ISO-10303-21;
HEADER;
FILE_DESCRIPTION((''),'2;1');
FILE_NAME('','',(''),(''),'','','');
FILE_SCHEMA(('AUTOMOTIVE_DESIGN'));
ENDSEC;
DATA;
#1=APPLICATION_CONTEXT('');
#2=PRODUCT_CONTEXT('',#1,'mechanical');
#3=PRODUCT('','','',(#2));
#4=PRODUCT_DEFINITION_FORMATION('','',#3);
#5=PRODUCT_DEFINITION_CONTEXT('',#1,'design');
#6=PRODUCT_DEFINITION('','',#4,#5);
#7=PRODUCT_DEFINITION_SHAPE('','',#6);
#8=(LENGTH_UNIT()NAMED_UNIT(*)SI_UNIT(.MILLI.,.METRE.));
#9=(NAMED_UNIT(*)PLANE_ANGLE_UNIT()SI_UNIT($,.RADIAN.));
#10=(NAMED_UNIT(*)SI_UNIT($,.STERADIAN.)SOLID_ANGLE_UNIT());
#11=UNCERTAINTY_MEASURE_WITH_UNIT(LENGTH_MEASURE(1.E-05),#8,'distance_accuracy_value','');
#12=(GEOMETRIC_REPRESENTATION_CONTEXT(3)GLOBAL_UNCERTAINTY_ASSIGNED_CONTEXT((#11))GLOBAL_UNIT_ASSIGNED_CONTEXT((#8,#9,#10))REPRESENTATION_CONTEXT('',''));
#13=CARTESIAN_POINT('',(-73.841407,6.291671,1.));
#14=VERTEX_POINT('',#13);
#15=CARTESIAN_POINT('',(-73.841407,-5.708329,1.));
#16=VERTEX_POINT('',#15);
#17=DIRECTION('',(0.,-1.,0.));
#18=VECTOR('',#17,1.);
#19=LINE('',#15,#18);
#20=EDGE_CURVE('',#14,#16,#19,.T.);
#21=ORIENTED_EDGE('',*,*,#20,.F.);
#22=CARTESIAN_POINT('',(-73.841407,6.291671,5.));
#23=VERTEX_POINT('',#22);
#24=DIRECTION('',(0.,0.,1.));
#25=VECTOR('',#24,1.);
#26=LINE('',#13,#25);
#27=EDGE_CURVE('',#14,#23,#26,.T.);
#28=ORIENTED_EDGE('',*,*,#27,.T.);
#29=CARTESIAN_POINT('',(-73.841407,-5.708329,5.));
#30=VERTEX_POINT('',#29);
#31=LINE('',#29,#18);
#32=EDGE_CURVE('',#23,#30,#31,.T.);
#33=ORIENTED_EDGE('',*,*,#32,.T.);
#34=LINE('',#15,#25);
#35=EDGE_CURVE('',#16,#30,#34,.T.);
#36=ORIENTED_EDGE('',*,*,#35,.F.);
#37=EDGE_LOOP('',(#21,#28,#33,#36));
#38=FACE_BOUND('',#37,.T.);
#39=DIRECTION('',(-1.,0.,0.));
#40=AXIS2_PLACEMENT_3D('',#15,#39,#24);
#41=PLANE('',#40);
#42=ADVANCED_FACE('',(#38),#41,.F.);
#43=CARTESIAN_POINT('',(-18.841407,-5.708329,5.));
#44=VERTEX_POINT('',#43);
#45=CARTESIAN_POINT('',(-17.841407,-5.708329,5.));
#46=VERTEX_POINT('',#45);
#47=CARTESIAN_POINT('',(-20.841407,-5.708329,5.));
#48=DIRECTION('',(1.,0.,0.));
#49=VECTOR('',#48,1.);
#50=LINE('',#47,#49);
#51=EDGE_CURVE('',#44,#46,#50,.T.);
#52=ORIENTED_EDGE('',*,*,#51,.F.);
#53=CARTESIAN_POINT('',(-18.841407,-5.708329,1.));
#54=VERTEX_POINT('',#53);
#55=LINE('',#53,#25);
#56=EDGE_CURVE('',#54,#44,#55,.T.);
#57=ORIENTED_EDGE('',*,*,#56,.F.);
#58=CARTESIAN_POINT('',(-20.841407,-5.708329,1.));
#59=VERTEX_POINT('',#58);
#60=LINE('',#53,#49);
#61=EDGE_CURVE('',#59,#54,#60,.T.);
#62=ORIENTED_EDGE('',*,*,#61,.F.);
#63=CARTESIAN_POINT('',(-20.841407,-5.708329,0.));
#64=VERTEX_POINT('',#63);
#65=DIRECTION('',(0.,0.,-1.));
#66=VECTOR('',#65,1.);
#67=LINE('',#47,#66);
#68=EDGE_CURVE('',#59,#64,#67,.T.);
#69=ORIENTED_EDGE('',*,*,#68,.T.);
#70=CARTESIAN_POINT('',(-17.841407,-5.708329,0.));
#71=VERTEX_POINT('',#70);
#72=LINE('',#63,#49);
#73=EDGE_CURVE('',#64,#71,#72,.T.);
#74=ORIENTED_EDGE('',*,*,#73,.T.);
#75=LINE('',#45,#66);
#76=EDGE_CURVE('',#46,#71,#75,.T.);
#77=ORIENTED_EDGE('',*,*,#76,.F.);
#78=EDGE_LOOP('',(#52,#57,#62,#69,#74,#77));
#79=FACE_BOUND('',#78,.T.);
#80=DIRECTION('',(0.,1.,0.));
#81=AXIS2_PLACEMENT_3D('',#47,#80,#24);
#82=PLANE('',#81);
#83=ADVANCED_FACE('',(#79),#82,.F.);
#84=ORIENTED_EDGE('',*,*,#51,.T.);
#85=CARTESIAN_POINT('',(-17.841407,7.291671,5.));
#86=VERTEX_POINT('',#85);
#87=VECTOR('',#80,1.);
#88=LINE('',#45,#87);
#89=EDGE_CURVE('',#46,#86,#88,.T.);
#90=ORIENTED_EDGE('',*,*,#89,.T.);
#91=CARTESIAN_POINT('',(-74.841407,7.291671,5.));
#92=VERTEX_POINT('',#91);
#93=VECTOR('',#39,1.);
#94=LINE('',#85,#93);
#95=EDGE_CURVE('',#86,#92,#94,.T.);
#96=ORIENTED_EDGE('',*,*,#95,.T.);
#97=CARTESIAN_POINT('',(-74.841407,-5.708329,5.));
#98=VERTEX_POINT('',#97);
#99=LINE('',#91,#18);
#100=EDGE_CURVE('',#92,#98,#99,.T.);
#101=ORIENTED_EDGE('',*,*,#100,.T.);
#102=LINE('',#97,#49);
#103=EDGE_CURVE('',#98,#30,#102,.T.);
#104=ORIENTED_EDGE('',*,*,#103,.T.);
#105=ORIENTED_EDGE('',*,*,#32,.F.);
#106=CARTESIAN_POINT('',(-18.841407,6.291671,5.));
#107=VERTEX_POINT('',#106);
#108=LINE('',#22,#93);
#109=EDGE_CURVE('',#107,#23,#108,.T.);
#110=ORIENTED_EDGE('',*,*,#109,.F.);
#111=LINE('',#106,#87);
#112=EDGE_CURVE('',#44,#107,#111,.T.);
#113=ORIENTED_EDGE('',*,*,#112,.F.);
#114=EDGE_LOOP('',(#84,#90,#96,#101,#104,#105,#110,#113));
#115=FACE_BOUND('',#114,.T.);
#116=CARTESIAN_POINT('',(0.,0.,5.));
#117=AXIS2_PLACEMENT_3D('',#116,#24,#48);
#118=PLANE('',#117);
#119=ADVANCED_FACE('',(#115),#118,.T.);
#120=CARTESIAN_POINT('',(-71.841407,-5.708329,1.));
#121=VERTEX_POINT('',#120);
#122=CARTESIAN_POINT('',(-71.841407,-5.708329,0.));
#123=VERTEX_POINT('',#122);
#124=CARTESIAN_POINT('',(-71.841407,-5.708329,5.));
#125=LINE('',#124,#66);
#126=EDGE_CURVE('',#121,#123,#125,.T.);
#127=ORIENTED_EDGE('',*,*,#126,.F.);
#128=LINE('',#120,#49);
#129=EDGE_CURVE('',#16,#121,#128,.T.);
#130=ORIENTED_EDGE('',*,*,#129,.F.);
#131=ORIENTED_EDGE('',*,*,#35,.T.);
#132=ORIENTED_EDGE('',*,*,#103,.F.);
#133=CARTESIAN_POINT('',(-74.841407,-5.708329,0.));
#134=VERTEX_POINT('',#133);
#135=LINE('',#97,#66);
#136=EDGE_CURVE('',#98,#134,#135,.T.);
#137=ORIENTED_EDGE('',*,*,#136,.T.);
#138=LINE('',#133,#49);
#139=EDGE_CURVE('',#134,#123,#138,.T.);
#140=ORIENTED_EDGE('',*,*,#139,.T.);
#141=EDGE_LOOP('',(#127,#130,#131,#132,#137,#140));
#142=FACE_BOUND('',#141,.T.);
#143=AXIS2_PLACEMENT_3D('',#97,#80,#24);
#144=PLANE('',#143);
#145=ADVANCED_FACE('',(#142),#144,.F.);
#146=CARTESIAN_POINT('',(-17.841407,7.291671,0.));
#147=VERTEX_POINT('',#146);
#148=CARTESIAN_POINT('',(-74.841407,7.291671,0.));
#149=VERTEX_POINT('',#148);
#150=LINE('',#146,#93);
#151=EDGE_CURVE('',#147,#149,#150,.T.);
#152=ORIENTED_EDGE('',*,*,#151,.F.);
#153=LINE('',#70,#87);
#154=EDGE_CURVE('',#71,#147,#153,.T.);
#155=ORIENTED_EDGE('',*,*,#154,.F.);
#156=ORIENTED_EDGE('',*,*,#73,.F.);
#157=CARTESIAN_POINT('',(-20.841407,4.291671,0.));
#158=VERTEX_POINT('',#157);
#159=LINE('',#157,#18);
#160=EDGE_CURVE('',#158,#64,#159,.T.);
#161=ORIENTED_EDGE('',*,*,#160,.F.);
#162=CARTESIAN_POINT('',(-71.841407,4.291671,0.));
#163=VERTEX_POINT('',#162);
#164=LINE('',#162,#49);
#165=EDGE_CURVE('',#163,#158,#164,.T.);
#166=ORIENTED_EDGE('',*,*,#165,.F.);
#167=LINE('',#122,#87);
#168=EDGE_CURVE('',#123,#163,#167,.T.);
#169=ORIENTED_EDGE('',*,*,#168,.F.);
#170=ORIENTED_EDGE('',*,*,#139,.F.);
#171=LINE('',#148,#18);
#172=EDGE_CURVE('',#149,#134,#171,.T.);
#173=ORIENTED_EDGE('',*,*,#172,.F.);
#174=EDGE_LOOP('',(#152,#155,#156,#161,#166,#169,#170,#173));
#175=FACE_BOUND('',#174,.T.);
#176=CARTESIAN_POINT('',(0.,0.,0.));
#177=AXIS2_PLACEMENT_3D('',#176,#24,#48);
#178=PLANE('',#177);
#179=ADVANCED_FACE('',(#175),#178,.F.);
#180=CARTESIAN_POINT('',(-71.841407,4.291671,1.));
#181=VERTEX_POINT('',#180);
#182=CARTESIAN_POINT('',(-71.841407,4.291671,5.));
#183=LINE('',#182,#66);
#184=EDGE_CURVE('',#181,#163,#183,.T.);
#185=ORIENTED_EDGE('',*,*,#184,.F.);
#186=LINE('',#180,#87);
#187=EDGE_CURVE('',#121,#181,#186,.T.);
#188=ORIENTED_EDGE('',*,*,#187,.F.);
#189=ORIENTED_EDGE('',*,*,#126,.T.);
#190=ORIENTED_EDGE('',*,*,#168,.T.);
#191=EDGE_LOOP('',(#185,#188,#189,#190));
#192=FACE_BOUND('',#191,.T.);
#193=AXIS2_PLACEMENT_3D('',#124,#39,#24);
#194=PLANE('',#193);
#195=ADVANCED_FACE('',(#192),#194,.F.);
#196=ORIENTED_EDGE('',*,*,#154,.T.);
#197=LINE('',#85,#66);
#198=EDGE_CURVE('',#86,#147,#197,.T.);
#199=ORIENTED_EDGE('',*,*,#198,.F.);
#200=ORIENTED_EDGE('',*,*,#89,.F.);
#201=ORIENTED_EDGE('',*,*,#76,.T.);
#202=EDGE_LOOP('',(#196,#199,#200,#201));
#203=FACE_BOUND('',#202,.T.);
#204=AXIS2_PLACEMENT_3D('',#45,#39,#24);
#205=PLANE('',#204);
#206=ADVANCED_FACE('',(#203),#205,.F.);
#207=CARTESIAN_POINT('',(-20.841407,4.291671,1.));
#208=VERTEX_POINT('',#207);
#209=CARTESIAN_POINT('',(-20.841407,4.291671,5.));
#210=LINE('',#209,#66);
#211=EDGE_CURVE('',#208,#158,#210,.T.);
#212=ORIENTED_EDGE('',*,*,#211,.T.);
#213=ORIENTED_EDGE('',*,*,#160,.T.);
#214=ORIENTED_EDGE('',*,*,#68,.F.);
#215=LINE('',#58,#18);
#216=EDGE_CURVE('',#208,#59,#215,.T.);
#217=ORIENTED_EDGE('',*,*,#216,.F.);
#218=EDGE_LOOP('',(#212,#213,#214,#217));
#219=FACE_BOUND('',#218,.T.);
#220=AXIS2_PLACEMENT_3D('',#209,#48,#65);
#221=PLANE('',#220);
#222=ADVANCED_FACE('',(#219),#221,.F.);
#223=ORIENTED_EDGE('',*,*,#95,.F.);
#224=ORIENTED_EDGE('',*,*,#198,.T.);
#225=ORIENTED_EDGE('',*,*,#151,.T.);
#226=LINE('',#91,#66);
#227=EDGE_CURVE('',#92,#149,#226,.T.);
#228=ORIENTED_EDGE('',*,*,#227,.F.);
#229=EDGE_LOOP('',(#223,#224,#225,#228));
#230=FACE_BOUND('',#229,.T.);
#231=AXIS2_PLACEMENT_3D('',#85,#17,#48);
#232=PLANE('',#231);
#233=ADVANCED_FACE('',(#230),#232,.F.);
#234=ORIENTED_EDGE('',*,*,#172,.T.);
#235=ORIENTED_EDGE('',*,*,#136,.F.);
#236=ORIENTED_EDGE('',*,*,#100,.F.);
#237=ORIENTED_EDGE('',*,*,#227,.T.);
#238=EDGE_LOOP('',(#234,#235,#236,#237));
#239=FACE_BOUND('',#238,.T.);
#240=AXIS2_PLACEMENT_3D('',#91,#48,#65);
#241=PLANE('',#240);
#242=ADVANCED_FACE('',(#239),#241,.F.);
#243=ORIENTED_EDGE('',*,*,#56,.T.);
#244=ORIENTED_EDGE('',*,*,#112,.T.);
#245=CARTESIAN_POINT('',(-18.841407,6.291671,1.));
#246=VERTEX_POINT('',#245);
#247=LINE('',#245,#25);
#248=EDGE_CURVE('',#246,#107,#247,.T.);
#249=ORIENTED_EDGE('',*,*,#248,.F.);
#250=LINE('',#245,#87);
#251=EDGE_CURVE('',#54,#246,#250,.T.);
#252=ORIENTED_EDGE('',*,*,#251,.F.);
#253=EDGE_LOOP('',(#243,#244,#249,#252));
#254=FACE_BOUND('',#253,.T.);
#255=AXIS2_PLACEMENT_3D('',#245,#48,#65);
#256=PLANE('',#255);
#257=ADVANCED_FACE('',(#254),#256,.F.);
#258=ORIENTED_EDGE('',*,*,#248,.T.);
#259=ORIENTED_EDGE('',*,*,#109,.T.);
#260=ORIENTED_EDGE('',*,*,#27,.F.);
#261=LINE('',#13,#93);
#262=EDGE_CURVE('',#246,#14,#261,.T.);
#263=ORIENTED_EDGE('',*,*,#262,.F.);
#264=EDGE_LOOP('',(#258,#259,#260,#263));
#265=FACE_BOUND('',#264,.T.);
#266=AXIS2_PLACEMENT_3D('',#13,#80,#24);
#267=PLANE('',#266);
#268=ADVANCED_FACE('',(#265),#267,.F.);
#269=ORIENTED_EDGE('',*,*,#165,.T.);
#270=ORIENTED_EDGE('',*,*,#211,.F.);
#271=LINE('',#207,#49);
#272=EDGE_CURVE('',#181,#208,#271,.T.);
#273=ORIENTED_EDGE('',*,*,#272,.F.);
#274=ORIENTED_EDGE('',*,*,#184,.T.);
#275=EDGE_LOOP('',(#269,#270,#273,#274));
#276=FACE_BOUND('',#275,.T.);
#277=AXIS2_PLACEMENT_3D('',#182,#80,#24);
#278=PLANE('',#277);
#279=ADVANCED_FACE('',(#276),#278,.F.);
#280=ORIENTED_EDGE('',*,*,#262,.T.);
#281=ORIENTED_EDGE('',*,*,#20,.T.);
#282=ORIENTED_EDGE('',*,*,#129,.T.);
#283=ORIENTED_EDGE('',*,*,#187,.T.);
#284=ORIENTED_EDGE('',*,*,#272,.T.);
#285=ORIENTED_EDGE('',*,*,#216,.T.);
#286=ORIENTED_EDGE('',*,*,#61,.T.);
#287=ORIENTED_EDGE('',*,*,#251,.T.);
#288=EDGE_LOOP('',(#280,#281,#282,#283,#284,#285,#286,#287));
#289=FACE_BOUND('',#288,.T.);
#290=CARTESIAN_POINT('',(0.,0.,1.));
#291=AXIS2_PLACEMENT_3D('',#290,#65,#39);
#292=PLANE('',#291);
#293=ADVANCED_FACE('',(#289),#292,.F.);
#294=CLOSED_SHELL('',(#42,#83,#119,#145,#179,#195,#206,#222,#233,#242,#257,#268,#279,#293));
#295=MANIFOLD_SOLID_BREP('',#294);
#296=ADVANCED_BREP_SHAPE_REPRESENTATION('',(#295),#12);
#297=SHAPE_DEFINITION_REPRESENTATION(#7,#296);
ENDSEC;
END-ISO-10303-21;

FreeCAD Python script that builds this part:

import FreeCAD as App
import Part
import Sketcher

V = App.Vector


def add_polygon(sketch, points):
    """Adds a closed chain of lines whose ends are joined by coincident constraints."""
    first, n = sketch.GeometryCount, len(points)
    for a, b in zip(points, points[1:] + points[:1]):
        sketch.addGeometry(Part.LineSegment(App.Vector(*a, 0), App.Vector(*b, 0)), False)
    for i in range(n):
        sketch.addConstraint(Sketcher.Constraint("Coincident", first + i, 2, first + (i + 1) % n, 1))

doc = App.newDocument("Part")
params = doc.addObject("Spreadsheet::Sheet", "Params")
for row, (alias, value) in enumerate([
    ("sketch1_width", "51 mm"),
    ("sketch1_width2", "3 mm"),
    ("sketch1_height", "10 mm"),
    ("sketch1_height2", "13 mm"),
    ("pad1_length", "5 mm"),
    ("sketch2_width", "2 mm"),
    ("sketch2_width2", "51 mm"),
    ("sketch2_height", "10 mm"),
    ("sketch2_height2", "12 mm"),
    ("pocket1_length", "4 mm"),
], start=1):
    params.set(f"A{row}", alias)
    params.set(f"B{row}", "=" + value)
    params.setAlias(f"B{row}", alias)

body = doc.addObject("PartDesign::Body", "Body")

# Sketch on XY plane
sketch1 = body.newObject("Sketcher::SketchObject", "Sketch")
sketch1.AttachmentSupport = (doc.getObject("XY_Plane"), [""])
sketch1.MapMode = "FlatFace"
add_polygon(sketch1, [(-71.841407, -5.708329), (-71.841407, 4.291671), (-20.841407, 4.291671), (-20.841407, -5.708329), (-17.841407, -5.708329), (-17.841407, 7.291671), (-74.841407, 7.291671), (-74.841407, -5.708329)])  # lines 0-7
sketch1.addConstraint(Sketcher.Constraint("Vertical", 0))
sketch1.addConstraint(Sketcher.Constraint("Horizontal", 1))
sketch1.addConstraint(Sketcher.Constraint("Vertical", 2))
sketch1.addConstraint(Sketcher.Constraint("Horizontal", 3))
sketch1.addConstraint(Sketcher.Constraint("Vertical", 4))
sketch1.addConstraint(Sketcher.Constraint("Horizontal", 5))
sketch1.addConstraint(Sketcher.Constraint("Vertical", 6))
sketch1.addConstraint(Sketcher.Constraint("Horizontal", 7))
sketch1.addConstraint(Sketcher.Constraint("Horizontal", 3, 2, 6, 2))
sketch1.addConstraint(Sketcher.Constraint("Equal", 3, 7))
sketch1.addConstraint(Sketcher.Constraint("DistanceX", 1, 1, 1, 2, 51.0))
sketch1.addConstraint(Sketcher.Constraint("DistanceX", 3, 1, 3, 2, 3.0))
sketch1.addConstraint(Sketcher.Constraint("DistanceY", 0, 1, 0, 2, 10.0))
sketch1.addConstraint(Sketcher.Constraint("DistanceY", 4, 1, 4, 2, 13.0))
sketch1.addConstraint(Sketcher.Constraint("DistanceY", -1, 1, 0, 2, 4.291671))
sketch1.addConstraint(Sketcher.Constraint("DistanceX", 0, 2, -1, 1, 71.841407))
sketch1.setExpression("Constraints[18]", "Params.sketch1_width")
sketch1.setExpression("Constraints[19]", "Params.sketch1_width2")
sketch1.setExpression("Constraints[20]", "Params.sketch1_height")
sketch1.setExpression("Constraints[21]", "Params.sketch1_height2")
pad1 = body.newObject("PartDesign::Pad", "Pad")
pad1.Profile = sketch1
pad1.setExpression("Length", "Params.pad1_length")

# Sketch on XY plane
sketch2 = body.newObject("Sketcher::SketchObject", "Sketch001")
sketch2.AttachmentSupport = (doc.getObject("XY_Plane"), [""])
sketch2.MapMode = "FlatFace"
sketch2.AttachmentOffset = App.Placement(V(0, 0, 5), App.Rotation())
add_polygon(sketch2, [(-73.841407, -5.708329), (-71.841407, -5.708329), (-71.841407, 4.291671), (-20.841407, 4.291671), (-20.841407, -5.708329), (-18.841407, -5.708329), (-18.841407, 6.291671), (-73.841407, 6.291671)])  # lines 0-7
sketch2.addConstraint(Sketcher.Constraint("Horizontal", 0))
sketch2.addConstraint(Sketcher.Constraint("Vertical", 1))
sketch2.addConstraint(Sketcher.Constraint("Horizontal", 2))
sketch2.addConstraint(Sketcher.Constraint("Vertical", 3))
sketch2.addConstraint(Sketcher.Constraint("Horizontal", 4))
sketch2.addConstraint(Sketcher.Constraint("Vertical", 5))
sketch2.addConstraint(Sketcher.Constraint("Horizontal", 6))
sketch2.addConstraint(Sketcher.Constraint("Vertical", 7))
sketch2.addConstraint(Sketcher.Constraint("Horizontal", 0, 2, 3, 2))
sketch2.addConstraint(Sketcher.Constraint("Equal", 0, 4))
sketch2.addConstraint(Sketcher.Constraint("DistanceX", 0, 1, 0, 2, 2.0))
sketch2.addConstraint(Sketcher.Constraint("DistanceX", 2, 1, 2, 2, 51.0))
sketch2.addConstraint(Sketcher.Constraint("DistanceY", 1, 1, 1, 2, 10.0))
sketch2.addConstraint(Sketcher.Constraint("DistanceY", 5, 1, 5, 2, 12.0))
sketch2.addConstraint(Sketcher.Constraint("DistanceY", 0, 2, -1, 1, 5.708329))
sketch2.addConstraint(Sketcher.Constraint("DistanceX", 0, 2, -1, 1, 71.841407))
sketch2.setExpression("Constraints[18]", "Params.sketch2_width")
sketch2.setExpression("Constraints[19]", "Params.sketch2_width2")
sketch2.setExpression("Constraints[20]", "Params.sketch2_height")
sketch2.setExpression("Constraints[21]", "Params.sketch2_height2")
pocket1 = body.newObject("PartDesign::Pocket", "Pocket")
pocket1.Profile = sketch2
pocket1.setExpression("Length", "Params.pocket1_length")

doc.recompute()
